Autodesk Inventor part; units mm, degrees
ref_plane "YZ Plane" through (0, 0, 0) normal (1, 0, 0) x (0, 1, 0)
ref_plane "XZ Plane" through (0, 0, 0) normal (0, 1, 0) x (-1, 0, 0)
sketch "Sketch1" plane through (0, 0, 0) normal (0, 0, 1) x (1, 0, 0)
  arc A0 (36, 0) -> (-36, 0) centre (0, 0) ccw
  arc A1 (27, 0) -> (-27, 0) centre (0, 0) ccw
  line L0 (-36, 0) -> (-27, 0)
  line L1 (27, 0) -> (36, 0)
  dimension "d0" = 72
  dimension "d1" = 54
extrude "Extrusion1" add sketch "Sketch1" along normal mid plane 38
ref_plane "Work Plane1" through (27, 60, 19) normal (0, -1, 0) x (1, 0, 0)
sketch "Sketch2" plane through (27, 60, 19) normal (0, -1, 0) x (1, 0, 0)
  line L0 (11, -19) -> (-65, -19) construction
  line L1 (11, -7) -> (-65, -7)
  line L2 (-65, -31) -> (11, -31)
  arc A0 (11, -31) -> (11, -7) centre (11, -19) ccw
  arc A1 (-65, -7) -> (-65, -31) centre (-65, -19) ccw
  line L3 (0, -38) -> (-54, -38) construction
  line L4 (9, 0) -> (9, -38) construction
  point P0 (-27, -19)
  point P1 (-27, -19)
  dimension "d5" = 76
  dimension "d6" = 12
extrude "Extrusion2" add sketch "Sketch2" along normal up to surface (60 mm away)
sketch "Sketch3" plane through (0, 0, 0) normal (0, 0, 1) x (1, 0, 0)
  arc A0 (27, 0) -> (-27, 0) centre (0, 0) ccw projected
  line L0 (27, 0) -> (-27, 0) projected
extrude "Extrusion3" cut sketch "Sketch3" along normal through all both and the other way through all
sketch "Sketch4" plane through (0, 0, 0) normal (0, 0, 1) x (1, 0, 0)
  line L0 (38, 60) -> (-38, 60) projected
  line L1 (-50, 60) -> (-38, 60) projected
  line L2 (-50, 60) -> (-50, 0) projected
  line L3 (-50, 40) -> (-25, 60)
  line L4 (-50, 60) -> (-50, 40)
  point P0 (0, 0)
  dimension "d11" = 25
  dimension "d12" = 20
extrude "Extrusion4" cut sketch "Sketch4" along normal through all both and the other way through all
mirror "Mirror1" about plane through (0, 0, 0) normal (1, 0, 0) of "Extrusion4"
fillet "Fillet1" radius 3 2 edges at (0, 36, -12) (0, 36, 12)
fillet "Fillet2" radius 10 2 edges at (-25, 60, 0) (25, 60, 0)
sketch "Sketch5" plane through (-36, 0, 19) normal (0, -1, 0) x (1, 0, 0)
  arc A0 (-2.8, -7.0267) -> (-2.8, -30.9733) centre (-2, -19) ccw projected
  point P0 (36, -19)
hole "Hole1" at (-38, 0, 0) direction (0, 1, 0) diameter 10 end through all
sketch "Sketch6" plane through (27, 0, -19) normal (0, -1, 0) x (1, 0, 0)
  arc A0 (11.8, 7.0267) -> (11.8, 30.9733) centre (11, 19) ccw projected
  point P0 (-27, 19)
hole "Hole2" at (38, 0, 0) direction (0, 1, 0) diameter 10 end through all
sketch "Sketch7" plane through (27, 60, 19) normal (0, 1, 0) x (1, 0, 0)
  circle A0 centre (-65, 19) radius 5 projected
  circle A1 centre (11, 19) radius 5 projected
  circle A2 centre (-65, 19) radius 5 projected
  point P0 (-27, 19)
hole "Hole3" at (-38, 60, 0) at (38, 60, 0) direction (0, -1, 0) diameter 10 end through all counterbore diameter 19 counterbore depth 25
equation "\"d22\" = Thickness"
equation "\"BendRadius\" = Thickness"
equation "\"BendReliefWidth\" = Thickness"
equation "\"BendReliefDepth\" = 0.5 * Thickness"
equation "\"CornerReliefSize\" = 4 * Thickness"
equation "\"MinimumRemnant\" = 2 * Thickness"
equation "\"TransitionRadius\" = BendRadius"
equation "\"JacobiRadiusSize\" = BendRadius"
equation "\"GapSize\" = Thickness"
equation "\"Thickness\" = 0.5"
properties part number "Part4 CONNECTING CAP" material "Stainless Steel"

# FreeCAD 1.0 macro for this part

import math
import FreeCAD as App
import Part
import Sketcher


def edges_at(feature, points):
    """Names of the edges that pass closest to the given points."""
    edges = feature.Shape.Edges
    near = lambda p: min(range(len(edges)), key=lambda i: edges[i].distToShape(Part.Vertex(*p))[0])
    return sorted({f"Edge{near(p) + 1}" for p in points})

doc = App.newDocument("Part")
body = doc.addObject("PartDesign::Body", "Body")

# Sketch on XY plane
sketch1 = doc.addObject("Sketcher::SketchObject", "Sketch")
body.addObject(sketch1)
sketch1.AttachmentSupport = (doc.XY_Plane, [""])
sketch1.MapMode = "FlatFace"
sketch1.addGeometry([
    Part.LineSegment(App.Vector(27, 0, 0), App.Vector(36, 0, 0)),
    Part.ArcOfCircle(Part.Circle(App.Vector(0, 0, 0), App.Vector(0, 0, 1), 36), math.radians(0), math.radians(180)),
    Part.LineSegment(App.Vector(-36, 0, 0), App.Vector(-27, 0, 0)),
    Part.ArcOfCircle(Part.Circle(App.Vector(0, 0, 0), App.Vector(0, 0, 1), 27), math.radians(0), math.radians(180)),
], False)
sketch1.addConstraint([
    Sketcher.Constraint("Coincident", 0, 2, 1, 1),
    Sketcher.Constraint("Coincident", 1, 2, 2, 1),
    Sketcher.Constraint("Coincident", 2, 2, 3, 2),
    Sketcher.Constraint("Coincident", 3, 1, 0, 1),
    Sketcher.Constraint("Horizontal", 0),
    Sketcher.Constraint("Horizontal", 2),
    Sketcher.Constraint("Coincident", 1, 3, -1, 1),
    Sketcher.Constraint("Coincident", 3, 3, -1, 1),
    Sketcher.Constraint("PointOnObject", 0, 2, -1),
    Sketcher.Constraint("PointOnObject", 1, 2, -1),
    Sketcher.Constraint("Radius", 1, 36.0),
    Sketcher.Constraint("Radius", 3, 27.0),
])
pad1 = doc.addObject("PartDesign::Pad", "Pad")
body.addObject(pad1)
pad1.Profile = sketch1
pad1.Length = 38
pad1.Midplane = True

# Sketch on XZ plane
sketch2 = doc.addObject("Sketcher::SketchObject", "Sketch001")
body.addObject(sketch2)
sketch2.AttachmentSupport = (doc.XZ_Plane, [""])
sketch2.MapMode = "FlatFace"
sketch2.AttachmentOffset = App.Placement(App.Vector(0, 0, -60), App.Rotation())
sketch2.addGeometry([
    Part.ArcOfCircle(Part.Circle(App.Vector(38, 0, 0), App.Vector(0, 0, 1), 12), math.radians(-90), math.radians(90)),
    Part.LineSegment(App.Vector(38, 12, 0), App.Vector(-38, 12, 0)),
    Part.ArcOfCircle(Part.Circle(App.Vector(-38, 0, 0), App.Vector(0, 0, 1), 12), math.radians(90), math.radians(270)),
    Part.LineSegment(App.Vector(-38, -12, 0), App.Vector(38, -12, 0)),
], False)
sketch2.addConstraint([
    Sketcher.Constraint("Tangent", 0, 2, 1, 1),
    Sketcher.Constraint("Tangent", 1, 2, 2, 1),
    Sketcher.Constraint("Tangent", 2, 2, 3, 1),
    Sketcher.Constraint("Tangent", 3, 2, 0, 1),
    Sketcher.Constraint("Horizontal", 1),
    Sketcher.Constraint("Horizontal", 3),
    Sketcher.Constraint("Symmetric", 0, 3, 2, 3, -1, 1),
    Sketcher.Constraint("Radius", 0, 12.0),
    Sketcher.Constraint("DistanceX", 1, 2, 1, 1, 76.0),
])
pad2 = doc.addObject("PartDesign::Pad", "Pad001")
body.addObject(pad2)
pad2.Profile = sketch2
pad2.Length = 60

# Sketch on XY plane
sketch3 = doc.addObject("Sketcher::SketchObject", "Sketch002")
body.addObject(sketch3)
sketch3.AttachmentSupport = (doc.XY_Plane, [""])
sketch3.MapMode = "FlatFace"
sketch3.addGeometry([
    Part.LineSegment(App.Vector(-27, 0, 0), App.Vector(27, 0, 0)),
    Part.ArcOfCircle(Part.Circle(App.Vector(0, 0, 0), App.Vector(0, 0, 1), 27), math.radians(0), math.radians(180)),
], False)
sketch3.addConstraint([
    Sketcher.Constraint("Coincident", 0, 1, 1, 2),
    Sketcher.Constraint("Coincident", 1, 1, 0, 2),
    Sketcher.Constraint("Horizontal", 0),
    Sketcher.Constraint("Coincident", 1, 3, -1, 1),
    Sketcher.Constraint("PointOnObject", 0, 1, -1),
    Sketcher.Constraint("Radius", 1, 27.0),
])
pocket1 = doc.addObject("PartDesign::Pocket", "Pocket")
body.addObject(pocket1)
pocket1.Profile = sketch3
pocket1.Type = "ThroughAll"
pocket1.Midplane = True

# Sketch on XY plane
sketch4 = doc.addObject("Sketcher::SketchObject", "Sketch003")
body.addObject(sketch4)
sketch4.AttachmentSupport = (doc.XY_Plane, [""])
sketch4.MapMode = "FlatFace"
sketch4.addGeometry([
    Part.LineSegment(App.Vector(-50, 40, 0), App.Vector(-25, 60, 0)),
    Part.LineSegment(App.Vector(-25, 60, 0), App.Vector(-50, 60, 0)),
    Part.LineSegment(App.Vector(-50, 60, 0), App.Vector(-50, 40, 0)),
], False)
sketch4.addConstraint([
    Sketcher.Constraint("Coincident", 0, 2, 1, 1),
    Sketcher.Constraint("Coincident", 1, 2, 2, 1),
    Sketcher.Constraint("Coincident", 2, 2, 0, 1),
    Sketcher.Constraint("Horizontal", 1),
    Sketcher.Constraint("Vertical", 2),
    Sketcher.Constraint("DistanceX", 1, 2, 1, 1, 25.0),
    Sketcher.Constraint("DistanceY", 2, 2, 2, 1, 20.0),
    Sketcher.Constraint("DistanceX", 0, 2, -1, 1, 25.0),
    Sketcher.Constraint("DistanceY", -1, 1, 0, 2, 60.0),
])
pocket2 = doc.addObject("PartDesign::Pocket", "Pocket001")
body.addObject(pocket2)
pocket2.Profile = sketch4
pocket2.Type = "ThroughAll"
pocket2.Midplane = True
doc.recompute()

mirrored = doc.addObject("PartDesign::Mirrored", "Mirrored")
body.addObject(mirrored)
mirrored.Originals = [pocket2]
mirrored.MirrorPlane = (doc.YZ_Plane, [""])
body.Tip = mirrored
doc.recompute()

fillet = doc.addObject("PartDesign::Fillet", "Fillet")
body.addObject(fillet)
fillet.Base = (mirrored, edges_at(mirrored, [(0, 36, -12), (0, 36, 12)]))
fillet.Radius = 3
doc.recompute()

fillet2 = doc.addObject("PartDesign::Fillet", "Fillet001")
body.addObject(fillet2)
fillet2.Base = (fillet, edges_at(fillet, [(-25, 60, 0), (25, 60, 0)]))
fillet2.Radius = 10

# Sketch on XZ plane
sketch5 = doc.addObject("Sketcher::SketchObject", "Sketch004")
body.addObject(sketch5)
sketch5.AttachmentSupport = (doc.XZ_Plane, [""])
sketch5.MapMode = "FlatFace"
sketch5.addGeometry(Part.Circle(App.Vector(-38, 0, 0), App.Vector(0, 0, 1), 5), False)
sketch5.addConstraint([
    Sketcher.Constraint("PointOnObject", 0, 3, -1),
    Sketcher.Constraint("Diameter", 0, 10.0),
    Sketcher.Constraint("DistanceX", 0, 3, -1, 1, 38.0),
])
doc.recompute()
hole = doc.addObject("PartDesign::Hole", "Hole")
body.addObject(hole)
hole.Profile = sketch5
hole.ThreadType = "None"
hole.Diameter = 10
hole.DepthType = "ThroughAll"

# Sketch on XZ plane
sketch6 = doc.addObject("Sketcher::SketchObject", "Sketch005")
body.addObject(sketch6)
sketch6.AttachmentSupport = (doc.XZ_Plane, [""])
sketch6.MapMode = "FlatFace"
sketch6.addGeometry(Part.Circle(App.Vector(38, 0, 0), App.Vector(0, 0, 1), 5), False)
sketch6.addConstraint([
    Sketcher.Constraint("PointOnObject", 0, 3, -1),
    Sketcher.Constraint("Diameter", 0, 10.0),
    Sketcher.Constraint("DistanceX", -1, 1, 0, 3, 38.0),
])
doc.recompute()
hole2 = doc.addObject("PartDesign::Hole", "Hole001")
body.addObject(hole2)
hole2.Profile = sketch6
hole2.ThreadType = "None"
hole2.Diameter = 10
hole2.DepthType = "ThroughAll"

# Sketch on XZ plane
sketch7 = doc.addObject("Sketcher::SketchObject", "Sketch006")
body.addObject(sketch7)
sketch7.AttachmentSupport = (doc.XZ_Plane, [""])
sketch7.MapMode = "FlatFace"
sketch7.AttachmentOffset = App.Placement(App.Vector(0, 0, -60), App.Rotation())
sketch7.addGeometry([
    Part.Circle(App.Vector(-38, 0, 0), App.Vector(0, 0, 1), 5),
    Part.Circle(App.Vector(38, 0, 0), App.Vector(0, 0, 1), 5),
], False)
sketch7.addConstraint([
    Sketcher.Constraint("Equal", 0, 1),
    Sketcher.Constraint("Symmetric", 0, 3, 1, 3, -1, 1),
    Sketcher.Constraint("PointOnObject", 0, 3, -1),
    Sketcher.Constraint("Diameter", 0, 10.0),
    Sketcher.Constraint("DistanceX", 0, 3, -1, 1, 38.0),
])
doc.recompute()
hole3 = doc.addObject("PartDesign::Hole", "Hole002")
body.addObject(hole3)
hole3.Profile = sketch7
hole3.ThreadType = "None"
hole3.Diameter = 10
hole3.DepthType = "ThroughAll"
hole3.HoleCutType = "Counterbore"
hole3.HoleCutDiameter = 19
hole3.HoleCutDepth = 25
hole3.Reversed = True

doc.recompute()
